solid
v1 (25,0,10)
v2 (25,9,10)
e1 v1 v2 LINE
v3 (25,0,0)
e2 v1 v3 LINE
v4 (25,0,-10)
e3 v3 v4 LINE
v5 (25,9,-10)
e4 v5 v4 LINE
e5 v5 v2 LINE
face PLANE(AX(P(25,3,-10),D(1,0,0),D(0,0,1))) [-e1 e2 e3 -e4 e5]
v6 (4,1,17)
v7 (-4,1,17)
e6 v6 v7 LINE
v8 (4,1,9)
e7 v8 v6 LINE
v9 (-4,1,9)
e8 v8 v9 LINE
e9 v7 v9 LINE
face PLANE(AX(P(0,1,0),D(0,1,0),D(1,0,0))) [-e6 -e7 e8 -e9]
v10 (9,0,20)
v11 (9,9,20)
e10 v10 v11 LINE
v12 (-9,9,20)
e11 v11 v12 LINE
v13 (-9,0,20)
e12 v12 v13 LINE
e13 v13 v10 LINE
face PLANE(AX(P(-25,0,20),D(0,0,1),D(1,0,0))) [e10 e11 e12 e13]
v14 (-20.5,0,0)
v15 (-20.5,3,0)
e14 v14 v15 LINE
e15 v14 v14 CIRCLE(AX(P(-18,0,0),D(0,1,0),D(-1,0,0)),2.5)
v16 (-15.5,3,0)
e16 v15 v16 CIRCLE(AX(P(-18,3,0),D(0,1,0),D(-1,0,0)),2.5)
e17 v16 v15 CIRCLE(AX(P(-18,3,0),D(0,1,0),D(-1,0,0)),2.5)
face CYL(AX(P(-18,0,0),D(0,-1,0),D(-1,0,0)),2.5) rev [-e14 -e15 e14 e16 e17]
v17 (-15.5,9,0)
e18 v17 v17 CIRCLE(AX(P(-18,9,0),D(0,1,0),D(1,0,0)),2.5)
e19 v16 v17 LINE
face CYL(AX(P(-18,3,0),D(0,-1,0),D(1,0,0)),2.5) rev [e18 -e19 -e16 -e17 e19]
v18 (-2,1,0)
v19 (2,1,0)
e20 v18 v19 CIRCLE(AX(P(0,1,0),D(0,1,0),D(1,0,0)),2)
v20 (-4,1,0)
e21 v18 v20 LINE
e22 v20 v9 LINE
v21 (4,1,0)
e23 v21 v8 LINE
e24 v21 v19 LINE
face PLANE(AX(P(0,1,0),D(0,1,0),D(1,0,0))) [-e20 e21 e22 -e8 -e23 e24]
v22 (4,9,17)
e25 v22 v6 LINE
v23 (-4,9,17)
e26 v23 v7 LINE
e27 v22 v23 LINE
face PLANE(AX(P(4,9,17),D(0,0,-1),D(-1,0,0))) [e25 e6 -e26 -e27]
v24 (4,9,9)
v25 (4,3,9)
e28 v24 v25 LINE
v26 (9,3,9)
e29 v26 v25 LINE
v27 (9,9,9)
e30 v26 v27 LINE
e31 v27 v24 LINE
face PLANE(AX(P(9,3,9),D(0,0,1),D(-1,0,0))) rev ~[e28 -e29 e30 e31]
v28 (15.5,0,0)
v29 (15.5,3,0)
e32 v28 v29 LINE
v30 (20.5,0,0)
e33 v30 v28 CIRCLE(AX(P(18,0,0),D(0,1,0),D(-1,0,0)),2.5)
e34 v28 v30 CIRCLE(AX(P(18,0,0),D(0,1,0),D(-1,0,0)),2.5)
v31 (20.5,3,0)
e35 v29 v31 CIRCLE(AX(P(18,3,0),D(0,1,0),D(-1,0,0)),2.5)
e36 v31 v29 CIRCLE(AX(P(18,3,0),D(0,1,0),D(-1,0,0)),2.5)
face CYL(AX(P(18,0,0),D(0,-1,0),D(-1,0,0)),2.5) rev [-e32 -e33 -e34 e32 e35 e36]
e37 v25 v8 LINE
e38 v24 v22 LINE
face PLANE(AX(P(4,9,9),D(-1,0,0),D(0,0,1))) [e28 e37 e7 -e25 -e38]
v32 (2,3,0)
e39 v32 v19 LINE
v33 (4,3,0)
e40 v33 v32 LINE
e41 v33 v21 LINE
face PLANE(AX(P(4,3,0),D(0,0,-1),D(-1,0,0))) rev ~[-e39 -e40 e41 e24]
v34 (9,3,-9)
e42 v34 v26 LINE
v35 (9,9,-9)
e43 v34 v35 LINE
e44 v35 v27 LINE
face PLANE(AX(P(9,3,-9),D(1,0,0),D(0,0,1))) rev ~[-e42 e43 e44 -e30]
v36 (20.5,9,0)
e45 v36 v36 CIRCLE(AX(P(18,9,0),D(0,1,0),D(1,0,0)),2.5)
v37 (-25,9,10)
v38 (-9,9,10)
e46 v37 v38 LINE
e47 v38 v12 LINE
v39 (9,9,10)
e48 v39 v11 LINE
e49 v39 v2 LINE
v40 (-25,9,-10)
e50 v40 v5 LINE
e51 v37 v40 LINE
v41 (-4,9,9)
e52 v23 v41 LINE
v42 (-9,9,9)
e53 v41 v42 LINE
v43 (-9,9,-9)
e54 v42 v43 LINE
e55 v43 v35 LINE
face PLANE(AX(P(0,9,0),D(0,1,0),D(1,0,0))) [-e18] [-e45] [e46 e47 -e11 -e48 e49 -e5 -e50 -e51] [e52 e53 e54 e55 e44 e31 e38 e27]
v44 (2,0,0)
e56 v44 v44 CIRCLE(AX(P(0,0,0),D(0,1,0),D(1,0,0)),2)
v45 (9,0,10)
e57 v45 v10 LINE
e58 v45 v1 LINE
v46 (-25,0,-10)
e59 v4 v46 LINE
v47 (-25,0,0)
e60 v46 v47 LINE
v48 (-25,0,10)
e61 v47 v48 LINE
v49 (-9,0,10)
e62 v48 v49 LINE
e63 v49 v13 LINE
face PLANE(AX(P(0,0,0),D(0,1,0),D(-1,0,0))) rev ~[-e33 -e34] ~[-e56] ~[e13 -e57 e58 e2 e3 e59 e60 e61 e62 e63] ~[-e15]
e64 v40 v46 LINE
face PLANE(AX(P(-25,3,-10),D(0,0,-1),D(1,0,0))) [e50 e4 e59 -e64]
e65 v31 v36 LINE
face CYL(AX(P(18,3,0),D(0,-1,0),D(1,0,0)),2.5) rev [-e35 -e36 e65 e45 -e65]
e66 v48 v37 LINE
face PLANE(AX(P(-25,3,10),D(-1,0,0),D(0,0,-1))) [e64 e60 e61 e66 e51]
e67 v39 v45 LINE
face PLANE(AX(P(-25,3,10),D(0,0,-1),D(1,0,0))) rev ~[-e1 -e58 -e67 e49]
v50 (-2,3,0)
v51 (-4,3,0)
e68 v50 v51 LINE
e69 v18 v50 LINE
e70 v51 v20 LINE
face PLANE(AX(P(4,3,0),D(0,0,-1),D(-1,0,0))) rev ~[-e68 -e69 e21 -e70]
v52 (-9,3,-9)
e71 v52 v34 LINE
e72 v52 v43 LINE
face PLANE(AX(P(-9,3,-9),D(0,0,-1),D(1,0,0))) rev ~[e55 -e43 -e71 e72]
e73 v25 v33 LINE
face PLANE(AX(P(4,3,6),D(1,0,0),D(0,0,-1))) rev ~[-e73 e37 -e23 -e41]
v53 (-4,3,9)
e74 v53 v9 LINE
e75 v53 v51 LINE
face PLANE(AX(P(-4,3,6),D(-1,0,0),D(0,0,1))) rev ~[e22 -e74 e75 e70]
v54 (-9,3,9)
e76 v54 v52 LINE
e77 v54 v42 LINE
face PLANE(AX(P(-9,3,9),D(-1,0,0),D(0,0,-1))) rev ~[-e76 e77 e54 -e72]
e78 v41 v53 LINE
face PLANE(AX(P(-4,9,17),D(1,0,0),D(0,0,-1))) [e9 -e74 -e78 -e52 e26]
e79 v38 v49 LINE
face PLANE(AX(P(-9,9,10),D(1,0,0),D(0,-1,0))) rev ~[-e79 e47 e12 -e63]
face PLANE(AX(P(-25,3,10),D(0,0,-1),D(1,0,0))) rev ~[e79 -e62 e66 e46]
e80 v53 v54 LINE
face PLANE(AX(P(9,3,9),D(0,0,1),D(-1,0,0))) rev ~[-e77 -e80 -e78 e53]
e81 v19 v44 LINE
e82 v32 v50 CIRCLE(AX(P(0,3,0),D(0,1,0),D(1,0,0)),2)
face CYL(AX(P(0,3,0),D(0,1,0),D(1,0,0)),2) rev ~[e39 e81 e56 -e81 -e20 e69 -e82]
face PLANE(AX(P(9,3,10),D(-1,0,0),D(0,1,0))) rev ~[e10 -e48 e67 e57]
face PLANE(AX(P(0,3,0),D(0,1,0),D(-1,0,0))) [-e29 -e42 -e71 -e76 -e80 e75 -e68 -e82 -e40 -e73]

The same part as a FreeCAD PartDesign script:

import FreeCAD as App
import Part
import Sketcher


def add_polygon(sketch, points):
    """Adds a closed chain of lines whose ends are joined by coincident constraints."""
    first, n = sketch.GeometryCount, len(points)
    for a, b in zip(points, points[1:] + points[:1]):
        sketch.addGeometry(Part.LineSegment(App.Vector(*a, 0), App.Vector(*b, 0)), False)
    for i in range(n):
        sketch.addConstraint(Sketcher.Constraint("Coincident", first + i, 2, first + (i + 1) % n, 1))

doc = App.newDocument("Part")
params = doc.addObject("Spreadsheet::Sheet", "Params")
for row, (alias, value) in enumerate([
    ("sketch1_diameter", "5 mm"),
    ("sketch1_width", "50 mm"),
    ("pad1_length", "3 mm"),
    ("sketch2_width", "18 mm"),
    ("sketch2_diameter", "5 mm"),
    ("sketch2_width2", "50 mm"),
    ("sketch2_height", "20 mm"),
    ("pad2_length", "6 mm"),
    ("sketch3_width", "18 mm"),
    ("sketch3_height", "9 mm"),
    ("pad3_length", "10 mm"),
    ("sketch4_width", "8 mm"),
    ("pocket1_length", "8 mm"),
    ("sketch5_width", "8 mm"),
    ("sketch5_height", "9 mm"),
    ("pocket2_length", "2 mm"),
    ("sketch6_diameter", "4 mm"),
], start=1):
    params.set(f"A{row}", alias)
    params.set(f"B{row}", "=" + value)
    params.setAlias(f"B{row}", alias)

body = doc.addObject("PartDesign::Body", "Body")

sketch1 = body.newObject("Sketcher::SketchObject", "Sketch")
sketch1.AttachmentSupport = (doc.getObject("XZ_Plane"), [""])
sketch1.MapMode = "FlatFace"
add_polygon(sketch1, [(-25, 0), (-25, 10), (25, 10), (25, 0), (25, -10), (-25, -10)])
sketch1.addGeometry(Part.Circle(App.Vector(18, 0, 0), App.Vector(0, 0, 1), 2.5), False)
sketch1.addGeometry(Part.Circle(App.Vector(-18, 0, 0), App.Vector(0, 0, 1), 2.5), False)
sketch1.addConstraint([
    Sketcher.Constraint("Vertical", 0),
    Sketcher.Constraint("Horizontal", 1),
    Sketcher.Constraint("Vertical", 2),
    Sketcher.Constraint("Vertical", 3),
    Sketcher.Constraint("Horizontal", 4),
    Sketcher.Constraint("Vertical", 5),
    Sketcher.Constraint("Equal", 6, 7),
    Sketcher.Constraint("Symmetric", 6, 3, 7, 3, -1, 1),
    Sketcher.Constraint("Symmetric", 0, 2, 3, 2, -1, 1),
    Sketcher.Constraint("PointOnObject", 6, 3, -1),
    Sketcher.Constraint("PointOnObject", 2, 2, -1),
    Sketcher.Constraint("PointOnObject", 5, 2, -1),
    Sketcher.Constraint("Diameter", 6, 5.0),
    Sketcher.Constraint("DistanceX", 1, 1, 1, 2, 50.0),
    Sketcher.Constraint("DistanceX", -1, 1, 6, 3, 18.0),
    Sketcher.Constraint("DistanceY", 3, 2, 1, 2, 20.0),
])
sketch1.setExpression("Constraints[18]", "Params.sketch1_diameter")
sketch1.setExpression("Constraints[19]", "Params.sketch1_width")
pad1 = body.newObject("PartDesign::Pad", "Pad")
pad1.Profile = sketch1
pad1.setExpression("Length", "Params.pad1_length")
pad1.Reversed = True

sketch2 = body.newObject("Sketcher::SketchObject", "Sketch001")
sketch2.AttachmentSupport = (doc.getObject("XZ_Plane"), [""])
sketch2.MapMode = "FlatFace"
sketch2.AttachmentOffset = App.Placement(App.Vector(0, 0, -3), App.Rotation())
add_polygon(sketch2, [(-25, -10), (-25, 10), (25, 10), (25, -10)])
sketch2.addGeometry(Part.Circle(App.Vector(-18, 0, 0), App.Vector(0, 0, 1), 2.5), False)
add_polygon(sketch2, [(-9, 9), (-9, -9), (9, -9), (9, 9)])
sketch2.addGeometry(Part.Circle(App.Vector(18, 0, 0), App.Vector(0, 0, 1), 2.5), False)
sketch2.addConstraint([
    Sketcher.Constraint("Vertical", 0),
    Sketcher.Constraint("Horizontal", 1),
    Sketcher.Constraint("Vertical", 2),
    Sketcher.Constraint("Horizontal", 3),
    Sketcher.Constraint("Vertical", 5),
    Sketcher.Constraint("Horizontal", 6),
    Sketcher.Constraint("Vertical", 7),
    Sketcher.Constraint("Horizontal", 8),
    Sketcher.Constraint("Equal", 4, 9),
    Sketcher.Constraint("Symmetric", 4, 3, 9, 3, -1, 1),
    Sketcher.Constraint("Symmetric", 0, 2, 2, 2, -1, 1),
    Sketcher.Constraint("Symmetric", 5, 2, 7, 2, -1, 1),
    Sketcher.Constraint("PointOnObject", 4, 3, -1),
    Sketcher.Constraint("Equal", 8, 5),
    Sketcher.Constraint("DistanceX", 6, 1, 6, 2, 18.0),
    Sketcher.Constraint("Diameter", 4, 5.0),
    Sketcher.Constraint("DistanceX", 4, 3, -1, 1, 18.0),
    Sketcher.Constraint("DistanceX", 1, 1, 1, 2, 50.0),
    Sketcher.Constraint("DistanceY", 0, 1, 0, 2, 20.0),
])
sketch2.setExpression("Constraints[22]", "Params.sketch2_width")
sketch2.setExpression("Constraints[23]", "Params.sketch2_diameter")
sketch2.setExpression("Constraints[25]", "Params.sketch2_width2")
sketch2.setExpression("Constraints[26]", "Params.sketch2_height")
pad2 = body.newObject("PartDesign::Pad", "Pad001")
pad2.Profile = sketch2
pad2.setExpression("Length", "Params.pad2_length")
pad2.Reversed = True

sketch3 = body.newObject("Sketcher::SketchObject", "Sketch002")
sketch3.AttachmentSupport = (doc.getObject("XY_Plane"), [""])
sketch3.MapMode = "FlatFace"
sketch3.AttachmentOffset = App.Placement(App.Vector(0, 0, 10), App.Rotation())
add_polygon(sketch3, [(9, 0), (9, 9), (-9, 9), (-9, 0)])
sketch3.addConstraint([
    Sketcher.Constraint("Vertical", 0),
    Sketcher.Constraint("Horizontal", 1),
    Sketcher.Constraint("Vertical", 2),
    Sketcher.Constraint("Horizontal", 3),
    Sketcher.Constraint("Symmetric", 2, 2, 3, 2, -1, 1),
    Sketcher.Constraint("DistanceX", 1, 2, 1, 1, 18.0),
    Sketcher.Constraint("DistanceY", 0, 1, 0, 2, 9.0),
])
sketch3.setExpression("Constraints[9]", "Params.sketch3_width")
sketch3.setExpression("Constraints[10]", "Params.sketch3_height")
pad3 = body.newObject("PartDesign::Pad", "Pad002")
pad3.Profile = sketch3
pad3.setExpression("Length", "Params.pad3_length")

sketch4 = body.newObject("Sketcher::SketchObject", "Sketch003")
sketch4.AttachmentSupport = (doc.getObject("XZ_Plane"), [""])
sketch4.MapMode = "FlatFace"
sketch4.AttachmentOffset = App.Placement(App.Vector(0, 0, -9), App.Rotation())
add_polygon(sketch4, [(4, 9), (-4, 9), (-4, 17), (4, 17)])
sketch4.addConstraint([
    Sketcher.Constraint("Horizontal", 0),
    Sketcher.Constraint("Vertical", 1),
    Sketcher.Constraint("Horizontal", 2),
    Sketcher.Constraint("Vertical", 3),
    Sketcher.Constraint("Equal", 2, 1),
    Sketcher.Constraint("DistanceX", 0, 2, 0, 1, 8.0),
    Sketcher.Constraint("DistanceX", 0, 2, -1, 1, 4.0),
    Sketcher.Constraint("DistanceY", -1, 1, 0, 2, 9.0),
])
sketch4.setExpression("Constraints[9]", "Params.sketch4_width")
pocket1 = body.newObject("PartDesign::Pocket", "Pocket")
pocket1.Profile = sketch4
pocket1.setExpression("Length", "Params.pocket1_length")
pocket1.Reversed = True

sketch5 = body.newObject("Sketcher::SketchObject", "Sketch004")
sketch5.AttachmentSupport = (doc.getObject("XZ_Plane"), [""])
sketch5.MapMode = "FlatFace"
sketch5.AttachmentOffset = App.Placement(App.Vector(0, 0, -3), App.Rotation())
add_polygon(sketch5, [(-4, 9), (4, 9), (4, 0), (-4, 0)])
sketch5.addConstraint([
    Sketcher.Constraint("Horizontal", 0),
    Sketcher.Constraint("Vertical", 1),
    Sketcher.Constraint("Horizontal", 2),
    Sketcher.Constraint("Vertical", 3),
    Sketcher.Constraint("Symmetric", 1, 2, 2, 2, -1, 1),
    Sketcher.Constraint("DistanceX", 0, 1, 0, 2, 8.0),
    Sketcher.Constraint("DistanceY", 1, 2, 1, 1, 9.0),
])
sketch5.setExpression("Constraints[9]", "Params.sketch5_width")
sketch5.setExpression("Constraints[10]", "Params.sketch5_height")
pocket2 = body.newObject("PartDesign::Pocket", "Pocket001")
pocket2.Profile = sketch5
pocket2.setExpression("Length", "Params.pocket2_length")
pocket2.Reversed = True

sketch6 = body.newObject("Sketcher::SketchObject", "Sketch005")
sketch6.AttachmentSupport = (doc.getObject("XZ_Plane"), [""])
sketch6.MapMode = "FlatFace"
sketch6.AttachmentOffset = App.Placement(App.Vector(0, 0, -3), App.Rotation())
sketch6.addGeometry(Part.Circle(App.Vector(0, 0, 0), App.Vector(0, 0, 1), 2), False)
sketch6.addConstraint([
    Sketcher.Constraint("Coincident", 0, 3, -1, 1),
    Sketcher.Constraint("Diameter", 0, 4.0),
])
sketch6.setExpression("Constraints[1]", "Params.sketch6_diameter")
pocket3 = body.newObject("PartDesign::Pocket", "Pocket002")
pocket3.Profile = sketch6
pocket3.Type = "ThroughAll"
pocket3.Reversed = True

doc.recompute()
